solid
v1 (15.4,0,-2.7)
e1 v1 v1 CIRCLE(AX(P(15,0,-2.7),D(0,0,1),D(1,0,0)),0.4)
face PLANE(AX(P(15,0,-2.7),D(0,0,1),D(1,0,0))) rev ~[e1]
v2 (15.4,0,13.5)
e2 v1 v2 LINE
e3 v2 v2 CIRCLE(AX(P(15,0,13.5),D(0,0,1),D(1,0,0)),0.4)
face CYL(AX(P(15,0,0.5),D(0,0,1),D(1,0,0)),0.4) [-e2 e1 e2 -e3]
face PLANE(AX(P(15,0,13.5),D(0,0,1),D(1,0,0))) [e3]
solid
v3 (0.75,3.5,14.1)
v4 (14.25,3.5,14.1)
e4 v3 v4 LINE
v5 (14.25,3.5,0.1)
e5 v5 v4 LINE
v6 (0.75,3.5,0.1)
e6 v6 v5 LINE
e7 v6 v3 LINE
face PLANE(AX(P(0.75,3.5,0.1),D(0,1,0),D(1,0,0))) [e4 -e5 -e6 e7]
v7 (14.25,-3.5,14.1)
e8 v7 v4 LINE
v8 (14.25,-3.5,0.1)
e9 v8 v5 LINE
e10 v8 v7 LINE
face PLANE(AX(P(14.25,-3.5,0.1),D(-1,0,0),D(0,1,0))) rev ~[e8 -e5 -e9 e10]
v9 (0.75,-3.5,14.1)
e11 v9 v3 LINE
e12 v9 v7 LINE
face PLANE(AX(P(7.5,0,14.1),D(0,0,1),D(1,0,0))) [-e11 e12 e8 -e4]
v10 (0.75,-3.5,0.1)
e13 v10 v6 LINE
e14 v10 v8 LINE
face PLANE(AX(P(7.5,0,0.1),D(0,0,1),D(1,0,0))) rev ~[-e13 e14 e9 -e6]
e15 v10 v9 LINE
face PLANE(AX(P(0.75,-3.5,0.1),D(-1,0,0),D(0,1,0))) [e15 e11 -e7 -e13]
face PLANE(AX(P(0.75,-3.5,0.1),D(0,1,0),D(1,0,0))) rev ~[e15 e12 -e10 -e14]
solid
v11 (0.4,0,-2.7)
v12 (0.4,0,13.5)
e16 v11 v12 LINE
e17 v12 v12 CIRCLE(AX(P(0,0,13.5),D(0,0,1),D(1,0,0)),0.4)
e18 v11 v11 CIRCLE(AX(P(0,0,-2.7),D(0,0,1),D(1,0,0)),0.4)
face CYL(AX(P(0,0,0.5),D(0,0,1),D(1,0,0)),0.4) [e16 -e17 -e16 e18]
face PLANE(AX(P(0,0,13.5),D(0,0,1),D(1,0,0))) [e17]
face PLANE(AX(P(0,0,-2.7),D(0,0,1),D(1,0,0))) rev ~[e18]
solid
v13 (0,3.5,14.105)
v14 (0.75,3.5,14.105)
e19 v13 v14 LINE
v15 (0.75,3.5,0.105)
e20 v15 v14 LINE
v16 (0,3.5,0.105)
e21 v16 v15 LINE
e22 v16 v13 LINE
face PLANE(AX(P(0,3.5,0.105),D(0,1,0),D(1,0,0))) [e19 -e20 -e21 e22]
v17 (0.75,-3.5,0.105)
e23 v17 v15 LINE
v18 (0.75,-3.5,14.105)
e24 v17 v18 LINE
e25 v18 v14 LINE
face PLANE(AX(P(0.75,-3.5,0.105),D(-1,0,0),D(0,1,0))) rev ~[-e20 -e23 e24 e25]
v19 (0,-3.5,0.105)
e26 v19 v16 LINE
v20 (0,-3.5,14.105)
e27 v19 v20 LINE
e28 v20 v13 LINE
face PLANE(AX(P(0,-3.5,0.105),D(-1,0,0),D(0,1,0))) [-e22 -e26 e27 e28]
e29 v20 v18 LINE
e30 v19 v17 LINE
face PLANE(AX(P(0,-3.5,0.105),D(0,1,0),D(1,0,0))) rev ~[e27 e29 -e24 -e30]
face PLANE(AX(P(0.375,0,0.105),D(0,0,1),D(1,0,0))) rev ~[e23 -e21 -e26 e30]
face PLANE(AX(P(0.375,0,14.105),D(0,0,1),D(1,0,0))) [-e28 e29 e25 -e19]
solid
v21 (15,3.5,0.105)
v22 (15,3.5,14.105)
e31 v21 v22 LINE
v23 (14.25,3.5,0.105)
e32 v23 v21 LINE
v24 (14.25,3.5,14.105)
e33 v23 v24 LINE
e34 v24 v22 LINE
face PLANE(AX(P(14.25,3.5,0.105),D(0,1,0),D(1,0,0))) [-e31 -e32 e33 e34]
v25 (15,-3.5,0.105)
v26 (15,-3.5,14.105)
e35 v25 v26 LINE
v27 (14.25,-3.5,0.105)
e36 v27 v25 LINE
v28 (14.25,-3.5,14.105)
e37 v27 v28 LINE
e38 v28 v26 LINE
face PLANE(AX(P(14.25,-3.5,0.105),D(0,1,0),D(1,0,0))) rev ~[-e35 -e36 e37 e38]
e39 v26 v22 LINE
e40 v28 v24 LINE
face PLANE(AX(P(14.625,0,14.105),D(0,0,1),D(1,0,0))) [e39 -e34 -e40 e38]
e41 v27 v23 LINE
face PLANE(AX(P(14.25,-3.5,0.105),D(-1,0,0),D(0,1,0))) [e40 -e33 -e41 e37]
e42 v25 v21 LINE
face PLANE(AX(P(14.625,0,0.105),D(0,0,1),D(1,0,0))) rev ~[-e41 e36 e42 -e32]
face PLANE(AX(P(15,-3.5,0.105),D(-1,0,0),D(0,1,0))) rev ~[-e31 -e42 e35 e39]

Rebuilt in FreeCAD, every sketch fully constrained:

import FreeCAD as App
import Part
import Sketcher

V = App.Vector
Q = App.Units.Quantity

doc = App.newDocument("Part")
body = doc.addObject("PartDesign::Body", "Body")

# Sketch on XY plane
sketch1 = body.newObject("Sketcher::SketchObject", "Sketch")
sketch1.AttachmentSupport = (doc.getObject("XY_Plane"), [""])
sketch1.MapMode = "FlatFace"
sketch1.AttachmentOffset = App.Placement(V(0, 0, 0.1), App.Rotation())
sketch1.addGeometry([
    Part.LineSegment(V(1, 4, 0), V(1, -4, 0)),
    Part.LineSegment(V(1, -4, 0), V(14, -4, 0)),
    Part.LineSegment(V(14, -4, 0), V(14, 4, 0)),
    Part.LineSegment(V(14, 4, 0), V(1, 4, 0)),
], False)
sketch1.addConstraint([
    Sketcher.Constraint("Coincident", 0, 2, 1, 1),
    Sketcher.Constraint("Coincident", 1, 2, 2, 1),
    Sketcher.Constraint("Coincident", 2, 2, 3, 1),
    Sketcher.Constraint("Coincident", 3, 2, 0, 1),
    Sketcher.Constraint("Vertical", 0),
    Sketcher.Constraint("Horizontal", 1),
    Sketcher.Constraint("Vertical", 2),
    Sketcher.Constraint("Horizontal", 3),
    Sketcher.Constraint("DistanceY", 0, 2, 0, 1, Q("7 mm")),
    Sketcher.Constraint("DistanceX", 1, 1, 1, 2, Q("13.5 mm")),
    Sketcher.Constraint("DistanceY", 0, 2, -1, 1, Q("3.5 mm")),
    Sketcher.Constraint("DistanceX", -1, 1, 0, 2, Q("0.75 mm")),
])
pad1 = body.newObject("PartDesign::Pad", "Pad")
pad1.Profile = sketch1
pad1.Length = 14
body2 = doc.addObject("PartDesign::Body", "Body001")
body2.AllowCompound = True

# Sketch on XY plane
sketch2 = body2.newObject("Sketcher::SketchObject", "Sketch001")
sketch2.AttachmentSupport = (doc.getObject("XY_Plane001"), [""])
sketch2.MapMode = "FlatFace"
sketch2.AttachmentOffset = App.Placement(V(0, 0, 0.5), App.Rotation())
sketch2.addGeometry([
    Part.Circle(V(0, 0, 0), V(0, 0, 1), 0.4),
    Part.Circle(V(15, 0, 0), V(0, 0, 1), 0.4),
], False)
sketch2.addConstraint([
    Sketcher.Constraint("Coincident", 0, 3, -1, 1),
    Sketcher.Constraint("Equal", 0, 1),
    Sketcher.Constraint("PointOnObject", 1, 3, -1),
    Sketcher.Constraint("Diameter", 0, Q("0.8 mm")),
    Sketcher.Constraint("DistanceX", -1, 1, 1, 3, Q("15 mm")),
])
pad2 = body2.newObject("PartDesign::Pad", "Pad001")
pad2.Profile = sketch2
pad2.Type = "TwoLengths"
pad2.Length = 13
pad2.Length2 = 3.2
body3 = doc.addObject("PartDesign::Body", "Body002")
body3.AllowCompound = True

# Sketch on XY plane
sketch3 = body3.newObject("Sketcher::SketchObject", "Sketch002")
sketch3.AttachmentSupport = (doc.getObject("XY_Plane002"), [""])
sketch3.MapMode = "FlatFace"
sketch3.AttachmentOffset = App.Placement(V(0, 0, 0.105), App.Rotation())
sketch3.addGeometry([
    Part.LineSegment(V(0, 3.5, 0), V(0, -3.5, 0)),  # 0
    Part.LineSegment(V(0, -3.5, 0), V(0.8, -3.5, 0)),  # 1
    Part.LineSegment(V(0.8, -3.5, 0), V(0.8, 3.5, 0)),  # 2
    Part.LineSegment(V(0.8, 3.5, 0), V(0, 3.5, 0)),  # 3
    Part.LineSegment(V(14.2, 3.5, 0), V(14.2, -3.5, 0)),  # 4
    Part.LineSegment(V(14.2, -3.5, 0), V(15, -3.5, 0)),  # 5
    Part.LineSegment(V(15, -3.5, 0), V(15, 3.5, 0)),  # 6
    Part.LineSegment(V(15, 3.5, 0), V(14.2, 3.5, 0)),  # 7
], False)
sketch3.addConstraint([
    Sketcher.Constraint("Coincident", 0, 2, 1, 1),
    Sketcher.Constraint("Coincident", 1, 2, 2, 1),
    Sketcher.Constraint("Coincident", 2, 2, 3, 1),
    Sketcher.Constraint("Coincident", 3, 2, 0, 1),
    Sketcher.Constraint("Coincident", 4, 2, 5, 1),
    Sketcher.Constraint("Coincident", 5, 2, 6, 1),
    Sketcher.Constraint("Coincident", 6, 2, 7, 1),
    Sketcher.Constraint("Coincident", 7, 2, 4, 1),
    Sketcher.Constraint("Vertical", 0),
    Sketcher.Constraint("Horizontal", 1),
    Sketcher.Constraint("Vertical", 2),
    Sketcher.Constraint("Horizontal", 3),
    Sketcher.Constraint("Vertical", 4),
    Sketcher.Constraint("Horizontal", 5),
    Sketcher.Constraint("Vertical", 6),
    Sketcher.Constraint("Horizontal", 7),
    Sketcher.Constraint("Symmetric", 0, 2, 3, 2, -1, 1),
    Sketcher.Constraint("Horizontal", 1, 2, 4, 2),
    Sketcher.Constraint("Horizontal", 3, 2, 6, 2),
    Sketcher.Constraint("Equal", 3, 5),
    Sketcher.Constraint("DistanceY", 0, 2, 0, 1, Q("7 mm")),
    Sketcher.Constraint("DistanceX", -1, 1, 5, 2, Q("15 mm")),
    Sketcher.Constraint("DistanceX", 1, 1, 1, 2, Q("0.75 mm")),
])
pad3 = body3.newObject("PartDesign::Pad", "Pad002")
pad3.Profile = sketch3
pad3.Length = 14

doc.recompute()
